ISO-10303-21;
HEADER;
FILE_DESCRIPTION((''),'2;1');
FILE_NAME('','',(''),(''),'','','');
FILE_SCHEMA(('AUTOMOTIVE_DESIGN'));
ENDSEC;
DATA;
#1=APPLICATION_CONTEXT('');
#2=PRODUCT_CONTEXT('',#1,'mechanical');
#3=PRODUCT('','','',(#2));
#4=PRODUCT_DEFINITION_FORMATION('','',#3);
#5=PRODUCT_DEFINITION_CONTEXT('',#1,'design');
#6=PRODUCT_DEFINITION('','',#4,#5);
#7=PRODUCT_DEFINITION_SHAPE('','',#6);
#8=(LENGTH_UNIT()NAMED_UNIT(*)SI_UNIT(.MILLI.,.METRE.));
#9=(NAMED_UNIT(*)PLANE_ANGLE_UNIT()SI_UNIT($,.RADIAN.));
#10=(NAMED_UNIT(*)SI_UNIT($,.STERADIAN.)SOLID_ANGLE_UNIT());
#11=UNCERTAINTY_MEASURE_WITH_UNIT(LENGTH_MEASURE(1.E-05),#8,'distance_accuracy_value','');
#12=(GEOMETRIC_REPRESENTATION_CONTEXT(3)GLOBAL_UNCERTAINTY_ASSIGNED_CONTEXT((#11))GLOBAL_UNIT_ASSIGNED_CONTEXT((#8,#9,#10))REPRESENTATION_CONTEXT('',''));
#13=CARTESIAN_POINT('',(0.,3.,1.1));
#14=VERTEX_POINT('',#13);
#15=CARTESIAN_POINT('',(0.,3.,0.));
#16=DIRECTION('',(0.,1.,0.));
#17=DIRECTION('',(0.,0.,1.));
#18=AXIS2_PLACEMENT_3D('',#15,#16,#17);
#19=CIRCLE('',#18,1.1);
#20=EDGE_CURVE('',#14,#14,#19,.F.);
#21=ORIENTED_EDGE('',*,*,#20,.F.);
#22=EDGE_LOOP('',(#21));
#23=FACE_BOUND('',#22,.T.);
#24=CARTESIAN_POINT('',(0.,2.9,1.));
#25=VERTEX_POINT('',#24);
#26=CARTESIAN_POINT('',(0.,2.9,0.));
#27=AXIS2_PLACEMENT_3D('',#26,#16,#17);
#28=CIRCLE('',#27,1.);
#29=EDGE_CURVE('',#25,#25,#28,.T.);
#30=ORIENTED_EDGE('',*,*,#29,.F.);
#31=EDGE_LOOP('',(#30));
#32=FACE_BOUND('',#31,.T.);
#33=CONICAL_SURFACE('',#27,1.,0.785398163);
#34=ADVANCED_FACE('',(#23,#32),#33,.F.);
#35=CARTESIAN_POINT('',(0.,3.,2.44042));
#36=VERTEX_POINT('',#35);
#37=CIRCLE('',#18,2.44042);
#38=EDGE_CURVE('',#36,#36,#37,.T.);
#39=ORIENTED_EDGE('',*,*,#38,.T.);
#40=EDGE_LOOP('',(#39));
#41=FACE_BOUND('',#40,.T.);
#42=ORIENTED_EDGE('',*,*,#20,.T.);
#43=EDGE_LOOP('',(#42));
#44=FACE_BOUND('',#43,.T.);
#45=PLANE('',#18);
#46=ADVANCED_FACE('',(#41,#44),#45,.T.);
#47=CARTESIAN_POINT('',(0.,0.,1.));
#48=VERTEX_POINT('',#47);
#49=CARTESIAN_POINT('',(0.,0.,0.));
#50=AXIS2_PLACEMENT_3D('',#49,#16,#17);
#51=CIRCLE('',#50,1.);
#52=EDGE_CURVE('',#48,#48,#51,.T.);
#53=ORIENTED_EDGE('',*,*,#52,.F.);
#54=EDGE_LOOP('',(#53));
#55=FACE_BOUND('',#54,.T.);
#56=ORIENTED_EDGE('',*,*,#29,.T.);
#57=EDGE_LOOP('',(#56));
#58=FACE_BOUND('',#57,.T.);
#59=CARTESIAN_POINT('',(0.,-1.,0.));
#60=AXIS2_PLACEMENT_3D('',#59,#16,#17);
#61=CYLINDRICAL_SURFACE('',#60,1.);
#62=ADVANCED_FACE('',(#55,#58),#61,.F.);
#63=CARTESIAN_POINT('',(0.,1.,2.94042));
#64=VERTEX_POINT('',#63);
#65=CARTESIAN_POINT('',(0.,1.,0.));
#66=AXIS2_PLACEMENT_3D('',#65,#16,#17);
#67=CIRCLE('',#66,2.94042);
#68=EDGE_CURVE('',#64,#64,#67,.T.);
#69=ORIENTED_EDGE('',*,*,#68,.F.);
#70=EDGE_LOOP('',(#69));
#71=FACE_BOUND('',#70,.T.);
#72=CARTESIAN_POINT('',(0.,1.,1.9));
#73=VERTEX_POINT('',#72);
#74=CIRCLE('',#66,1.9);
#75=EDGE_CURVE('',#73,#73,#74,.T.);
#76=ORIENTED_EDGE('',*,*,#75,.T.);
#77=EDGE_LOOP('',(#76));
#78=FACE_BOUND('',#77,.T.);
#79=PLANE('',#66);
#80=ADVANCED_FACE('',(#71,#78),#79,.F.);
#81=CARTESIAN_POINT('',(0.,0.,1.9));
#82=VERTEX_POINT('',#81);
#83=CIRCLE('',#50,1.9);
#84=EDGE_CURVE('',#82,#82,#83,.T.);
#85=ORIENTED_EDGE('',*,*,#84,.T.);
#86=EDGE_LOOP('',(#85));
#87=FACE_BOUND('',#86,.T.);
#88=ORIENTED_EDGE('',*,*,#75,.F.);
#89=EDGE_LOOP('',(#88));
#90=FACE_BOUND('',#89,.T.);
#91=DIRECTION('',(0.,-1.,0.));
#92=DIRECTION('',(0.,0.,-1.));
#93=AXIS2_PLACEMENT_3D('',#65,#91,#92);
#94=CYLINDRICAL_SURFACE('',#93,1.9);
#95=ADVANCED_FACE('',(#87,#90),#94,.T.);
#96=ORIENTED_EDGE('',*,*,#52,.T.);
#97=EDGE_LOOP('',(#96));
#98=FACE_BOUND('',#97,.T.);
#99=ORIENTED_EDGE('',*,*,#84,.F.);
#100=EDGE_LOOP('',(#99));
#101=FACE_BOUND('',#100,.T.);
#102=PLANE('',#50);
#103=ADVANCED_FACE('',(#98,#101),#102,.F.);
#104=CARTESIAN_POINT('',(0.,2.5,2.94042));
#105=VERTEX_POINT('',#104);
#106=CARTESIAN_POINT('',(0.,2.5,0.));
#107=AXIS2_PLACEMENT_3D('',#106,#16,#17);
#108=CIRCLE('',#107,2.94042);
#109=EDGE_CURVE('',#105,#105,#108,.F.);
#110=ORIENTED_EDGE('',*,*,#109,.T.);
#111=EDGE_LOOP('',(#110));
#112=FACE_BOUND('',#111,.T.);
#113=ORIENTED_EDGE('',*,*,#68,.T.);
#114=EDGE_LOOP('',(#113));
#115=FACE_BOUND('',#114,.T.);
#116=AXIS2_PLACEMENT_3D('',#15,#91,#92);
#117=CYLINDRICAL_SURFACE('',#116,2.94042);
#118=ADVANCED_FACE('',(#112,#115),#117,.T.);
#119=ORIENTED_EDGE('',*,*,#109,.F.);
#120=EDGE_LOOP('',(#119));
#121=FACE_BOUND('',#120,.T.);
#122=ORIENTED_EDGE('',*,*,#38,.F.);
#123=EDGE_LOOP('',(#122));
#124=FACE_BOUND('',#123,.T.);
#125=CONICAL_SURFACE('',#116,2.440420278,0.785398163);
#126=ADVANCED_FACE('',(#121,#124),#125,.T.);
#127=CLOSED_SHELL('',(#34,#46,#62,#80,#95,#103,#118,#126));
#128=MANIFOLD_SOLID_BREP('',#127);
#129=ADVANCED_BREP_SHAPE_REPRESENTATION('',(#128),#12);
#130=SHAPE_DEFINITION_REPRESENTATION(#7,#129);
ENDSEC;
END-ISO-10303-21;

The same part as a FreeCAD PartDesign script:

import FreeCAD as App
import Part
import Sketcher
from FreeCAD import Vector


def edges_at(feature, points):
    """Names of the edges that pass closest to the given points."""
    edges = feature.Shape.Edges
    near = lambda p: min(range(len(edges)), key=lambda i: edges[i].distToShape(Part.Vertex(*p))[0])
    return sorted({f"Edge{near(p) + 1}" for p in points})

doc = App.newDocument("Part")
body = doc.addObject("PartDesign::Body", "Body")

# Sketch on XZ plane
sketch1 = body.newObject("Sketcher::SketchObject", "Sketch")
sketch1.AttachmentSupport = (doc.getObject("XZ_Plane"), [""])
sketch1.MapMode = "FlatFace"
sketch1.addGeometry(Part.Circle(Vector(0, 0, 0), Vector(0, 0, 1), 1.9), False)
sketch1.addConstraint(Sketcher.Constraint("Coincident", 0, 3, -1, 1))
sketch1.addConstraint(Sketcher.Constraint("Diameter", 0, 3.8))
pad1 = body.newObject("PartDesign::Pad", "Pad")
pad1.Profile = sketch1
pad1.Length = 1
pad1.Reversed = True

# Sketch on XZ plane
sketch2 = body.newObject("Sketcher::SketchObject", "Sketch001")
sketch2.AttachmentSupport = (doc.getObject("XZ_Plane"), [""])
sketch2.MapMode = "FlatFace"
sketch2.AttachmentOffset = App.Placement(Vector(0, 0, -1), App.Rotation())
sketch2.addGeometry(Part.Circle(Vector(0, 0, 0), Vector(0, 0, 1), 2.9), False)
sketch2.addConstraint(Sketcher.Constraint("Coincident", 0, 3, -1, 1))
sketch2.addConstraint(Sketcher.Constraint("Diameter", 0, 5.880841))
pad2 = body.newObject("PartDesign::Pad", "Pad001")
pad2.Profile = sketch2
pad2.Length = 2
pad2.Reversed = True
doc.recompute()

chamfer = body.newObject("PartDesign::Chamfer", "Chamfer")
chamfer.Base = (pad2, edges_at(pad2, [(0, 3, -2.94)]))
chamfer.Size = 0.5

# Sketch on XZ plane
sketch3 = body.newObject("Sketcher::SketchObject", "Sketch002")
sketch3.AttachmentSupport = (doc.getObject("XZ_Plane"), [""])
sketch3.MapMode = "FlatFace"
sketch3.AttachmentOffset = App.Placement(Vector(0, 0, -3), App.Rotation())
sketch3.addGeometry(Part.Circle(Vector(0, 0, 0), Vector(0, 0, 1), 1), False)
sketch3.addConstraint(Sketcher.Constraint("Coincident", 0, 3, -1, 1))
sketch3.addConstraint(Sketcher.Constraint("Diameter", 0, 2.0))
pocket1 = body.newObject("PartDesign::Pocket", "Pocket")
pocket1.Profile = sketch3
pocket1.Length = 4
pocket1.Reversed = True
doc.recompute()

chamfer2 = body.newObject("PartDesign::Chamfer", "Chamfer001")
chamfer2.Base = (pocket1, edges_at(pocket1, [(0, 3, -1)]))
chamfer2.Size = 0.1

doc.recompute()
